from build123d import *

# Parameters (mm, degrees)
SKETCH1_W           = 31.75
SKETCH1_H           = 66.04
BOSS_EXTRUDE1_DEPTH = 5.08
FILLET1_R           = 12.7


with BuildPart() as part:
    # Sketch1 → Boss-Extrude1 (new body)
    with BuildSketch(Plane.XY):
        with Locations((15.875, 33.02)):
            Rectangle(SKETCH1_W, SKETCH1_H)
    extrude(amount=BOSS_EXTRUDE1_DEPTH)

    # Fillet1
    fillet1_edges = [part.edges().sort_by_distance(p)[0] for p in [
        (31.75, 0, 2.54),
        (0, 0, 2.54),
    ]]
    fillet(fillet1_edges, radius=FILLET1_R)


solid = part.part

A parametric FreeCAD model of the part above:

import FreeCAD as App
import Part
import Sketcher

V = App.Vector
Q = App.Units.Quantity


def edges_at(feature, points):
    """Names of the edges that pass closest to the given points."""
    edges = feature.Shape.Edges
    near = lambda p: min(range(len(edges)), key=lambda i: edges[i].distToShape(Part.Vertex(*p))[0])
    return sorted({f"Edge{near(p) + 1}" for p in points})

doc = App.newDocument("Part")
body = doc.addObject("PartDesign::Body", "Body")

sketch1 = body.newObject("Sketcher::SketchObject", "Sketch")
sketch1.AttachmentSupport = (doc.getObject("XY_Plane"), [""])
sketch1.MapMode = "FlatFace"
sketch1.addGeometry([
    Part.LineSegment(V(0, 66.04, 0), V(0, 0, 0)),
    Part.LineSegment(V(0, 0, 0), V(31.75, 0, 0)),
    Part.LineSegment(V(31.75, 0, 0), V(31.75, 66.04, 0)),
    Part.LineSegment(V(31.75, 66.04, 0), V(0, 66.04, 0)),
], False)
sketch1.addConstraint([
    Sketcher.Constraint("Coincident", 0, 2, 1, 1),
    Sketcher.Constraint("Coincident", 1, 2, 2, 1),
    Sketcher.Constraint("Coincident", 2, 2, 3, 1),
    Sketcher.Constraint("Coincident", 3, 2, 0, 1),
    Sketcher.Constraint("Vertical", 0),
    Sketcher.Constraint("Horizontal", 1),
    Sketcher.Constraint("Vertical", 2),
    Sketcher.Constraint("Horizontal", 3),
    Sketcher.Constraint("Coincident", 0, 2, -1, 1),
    Sketcher.Constraint("DistanceY", 0, 2, 0, 1, Q("2.6 in")),
    Sketcher.Constraint("DistanceX", 1, 1, 1, 2, Q("1.25 in")),
])
pad1 = body.newObject("PartDesign::Pad", "Pad")
pad1.Profile = sketch1
pad1.Length = Q("0.2 in")
doc.recompute()

fillet = body.newObject("PartDesign::Fillet", "Fillet")
fillet.Base = (pad1, edges_at(pad1, [(31.75, 0, 2.54), (0, 0, 2.54)]))
fillet.Radius = Q("0.5 in")

doc.recompute()
